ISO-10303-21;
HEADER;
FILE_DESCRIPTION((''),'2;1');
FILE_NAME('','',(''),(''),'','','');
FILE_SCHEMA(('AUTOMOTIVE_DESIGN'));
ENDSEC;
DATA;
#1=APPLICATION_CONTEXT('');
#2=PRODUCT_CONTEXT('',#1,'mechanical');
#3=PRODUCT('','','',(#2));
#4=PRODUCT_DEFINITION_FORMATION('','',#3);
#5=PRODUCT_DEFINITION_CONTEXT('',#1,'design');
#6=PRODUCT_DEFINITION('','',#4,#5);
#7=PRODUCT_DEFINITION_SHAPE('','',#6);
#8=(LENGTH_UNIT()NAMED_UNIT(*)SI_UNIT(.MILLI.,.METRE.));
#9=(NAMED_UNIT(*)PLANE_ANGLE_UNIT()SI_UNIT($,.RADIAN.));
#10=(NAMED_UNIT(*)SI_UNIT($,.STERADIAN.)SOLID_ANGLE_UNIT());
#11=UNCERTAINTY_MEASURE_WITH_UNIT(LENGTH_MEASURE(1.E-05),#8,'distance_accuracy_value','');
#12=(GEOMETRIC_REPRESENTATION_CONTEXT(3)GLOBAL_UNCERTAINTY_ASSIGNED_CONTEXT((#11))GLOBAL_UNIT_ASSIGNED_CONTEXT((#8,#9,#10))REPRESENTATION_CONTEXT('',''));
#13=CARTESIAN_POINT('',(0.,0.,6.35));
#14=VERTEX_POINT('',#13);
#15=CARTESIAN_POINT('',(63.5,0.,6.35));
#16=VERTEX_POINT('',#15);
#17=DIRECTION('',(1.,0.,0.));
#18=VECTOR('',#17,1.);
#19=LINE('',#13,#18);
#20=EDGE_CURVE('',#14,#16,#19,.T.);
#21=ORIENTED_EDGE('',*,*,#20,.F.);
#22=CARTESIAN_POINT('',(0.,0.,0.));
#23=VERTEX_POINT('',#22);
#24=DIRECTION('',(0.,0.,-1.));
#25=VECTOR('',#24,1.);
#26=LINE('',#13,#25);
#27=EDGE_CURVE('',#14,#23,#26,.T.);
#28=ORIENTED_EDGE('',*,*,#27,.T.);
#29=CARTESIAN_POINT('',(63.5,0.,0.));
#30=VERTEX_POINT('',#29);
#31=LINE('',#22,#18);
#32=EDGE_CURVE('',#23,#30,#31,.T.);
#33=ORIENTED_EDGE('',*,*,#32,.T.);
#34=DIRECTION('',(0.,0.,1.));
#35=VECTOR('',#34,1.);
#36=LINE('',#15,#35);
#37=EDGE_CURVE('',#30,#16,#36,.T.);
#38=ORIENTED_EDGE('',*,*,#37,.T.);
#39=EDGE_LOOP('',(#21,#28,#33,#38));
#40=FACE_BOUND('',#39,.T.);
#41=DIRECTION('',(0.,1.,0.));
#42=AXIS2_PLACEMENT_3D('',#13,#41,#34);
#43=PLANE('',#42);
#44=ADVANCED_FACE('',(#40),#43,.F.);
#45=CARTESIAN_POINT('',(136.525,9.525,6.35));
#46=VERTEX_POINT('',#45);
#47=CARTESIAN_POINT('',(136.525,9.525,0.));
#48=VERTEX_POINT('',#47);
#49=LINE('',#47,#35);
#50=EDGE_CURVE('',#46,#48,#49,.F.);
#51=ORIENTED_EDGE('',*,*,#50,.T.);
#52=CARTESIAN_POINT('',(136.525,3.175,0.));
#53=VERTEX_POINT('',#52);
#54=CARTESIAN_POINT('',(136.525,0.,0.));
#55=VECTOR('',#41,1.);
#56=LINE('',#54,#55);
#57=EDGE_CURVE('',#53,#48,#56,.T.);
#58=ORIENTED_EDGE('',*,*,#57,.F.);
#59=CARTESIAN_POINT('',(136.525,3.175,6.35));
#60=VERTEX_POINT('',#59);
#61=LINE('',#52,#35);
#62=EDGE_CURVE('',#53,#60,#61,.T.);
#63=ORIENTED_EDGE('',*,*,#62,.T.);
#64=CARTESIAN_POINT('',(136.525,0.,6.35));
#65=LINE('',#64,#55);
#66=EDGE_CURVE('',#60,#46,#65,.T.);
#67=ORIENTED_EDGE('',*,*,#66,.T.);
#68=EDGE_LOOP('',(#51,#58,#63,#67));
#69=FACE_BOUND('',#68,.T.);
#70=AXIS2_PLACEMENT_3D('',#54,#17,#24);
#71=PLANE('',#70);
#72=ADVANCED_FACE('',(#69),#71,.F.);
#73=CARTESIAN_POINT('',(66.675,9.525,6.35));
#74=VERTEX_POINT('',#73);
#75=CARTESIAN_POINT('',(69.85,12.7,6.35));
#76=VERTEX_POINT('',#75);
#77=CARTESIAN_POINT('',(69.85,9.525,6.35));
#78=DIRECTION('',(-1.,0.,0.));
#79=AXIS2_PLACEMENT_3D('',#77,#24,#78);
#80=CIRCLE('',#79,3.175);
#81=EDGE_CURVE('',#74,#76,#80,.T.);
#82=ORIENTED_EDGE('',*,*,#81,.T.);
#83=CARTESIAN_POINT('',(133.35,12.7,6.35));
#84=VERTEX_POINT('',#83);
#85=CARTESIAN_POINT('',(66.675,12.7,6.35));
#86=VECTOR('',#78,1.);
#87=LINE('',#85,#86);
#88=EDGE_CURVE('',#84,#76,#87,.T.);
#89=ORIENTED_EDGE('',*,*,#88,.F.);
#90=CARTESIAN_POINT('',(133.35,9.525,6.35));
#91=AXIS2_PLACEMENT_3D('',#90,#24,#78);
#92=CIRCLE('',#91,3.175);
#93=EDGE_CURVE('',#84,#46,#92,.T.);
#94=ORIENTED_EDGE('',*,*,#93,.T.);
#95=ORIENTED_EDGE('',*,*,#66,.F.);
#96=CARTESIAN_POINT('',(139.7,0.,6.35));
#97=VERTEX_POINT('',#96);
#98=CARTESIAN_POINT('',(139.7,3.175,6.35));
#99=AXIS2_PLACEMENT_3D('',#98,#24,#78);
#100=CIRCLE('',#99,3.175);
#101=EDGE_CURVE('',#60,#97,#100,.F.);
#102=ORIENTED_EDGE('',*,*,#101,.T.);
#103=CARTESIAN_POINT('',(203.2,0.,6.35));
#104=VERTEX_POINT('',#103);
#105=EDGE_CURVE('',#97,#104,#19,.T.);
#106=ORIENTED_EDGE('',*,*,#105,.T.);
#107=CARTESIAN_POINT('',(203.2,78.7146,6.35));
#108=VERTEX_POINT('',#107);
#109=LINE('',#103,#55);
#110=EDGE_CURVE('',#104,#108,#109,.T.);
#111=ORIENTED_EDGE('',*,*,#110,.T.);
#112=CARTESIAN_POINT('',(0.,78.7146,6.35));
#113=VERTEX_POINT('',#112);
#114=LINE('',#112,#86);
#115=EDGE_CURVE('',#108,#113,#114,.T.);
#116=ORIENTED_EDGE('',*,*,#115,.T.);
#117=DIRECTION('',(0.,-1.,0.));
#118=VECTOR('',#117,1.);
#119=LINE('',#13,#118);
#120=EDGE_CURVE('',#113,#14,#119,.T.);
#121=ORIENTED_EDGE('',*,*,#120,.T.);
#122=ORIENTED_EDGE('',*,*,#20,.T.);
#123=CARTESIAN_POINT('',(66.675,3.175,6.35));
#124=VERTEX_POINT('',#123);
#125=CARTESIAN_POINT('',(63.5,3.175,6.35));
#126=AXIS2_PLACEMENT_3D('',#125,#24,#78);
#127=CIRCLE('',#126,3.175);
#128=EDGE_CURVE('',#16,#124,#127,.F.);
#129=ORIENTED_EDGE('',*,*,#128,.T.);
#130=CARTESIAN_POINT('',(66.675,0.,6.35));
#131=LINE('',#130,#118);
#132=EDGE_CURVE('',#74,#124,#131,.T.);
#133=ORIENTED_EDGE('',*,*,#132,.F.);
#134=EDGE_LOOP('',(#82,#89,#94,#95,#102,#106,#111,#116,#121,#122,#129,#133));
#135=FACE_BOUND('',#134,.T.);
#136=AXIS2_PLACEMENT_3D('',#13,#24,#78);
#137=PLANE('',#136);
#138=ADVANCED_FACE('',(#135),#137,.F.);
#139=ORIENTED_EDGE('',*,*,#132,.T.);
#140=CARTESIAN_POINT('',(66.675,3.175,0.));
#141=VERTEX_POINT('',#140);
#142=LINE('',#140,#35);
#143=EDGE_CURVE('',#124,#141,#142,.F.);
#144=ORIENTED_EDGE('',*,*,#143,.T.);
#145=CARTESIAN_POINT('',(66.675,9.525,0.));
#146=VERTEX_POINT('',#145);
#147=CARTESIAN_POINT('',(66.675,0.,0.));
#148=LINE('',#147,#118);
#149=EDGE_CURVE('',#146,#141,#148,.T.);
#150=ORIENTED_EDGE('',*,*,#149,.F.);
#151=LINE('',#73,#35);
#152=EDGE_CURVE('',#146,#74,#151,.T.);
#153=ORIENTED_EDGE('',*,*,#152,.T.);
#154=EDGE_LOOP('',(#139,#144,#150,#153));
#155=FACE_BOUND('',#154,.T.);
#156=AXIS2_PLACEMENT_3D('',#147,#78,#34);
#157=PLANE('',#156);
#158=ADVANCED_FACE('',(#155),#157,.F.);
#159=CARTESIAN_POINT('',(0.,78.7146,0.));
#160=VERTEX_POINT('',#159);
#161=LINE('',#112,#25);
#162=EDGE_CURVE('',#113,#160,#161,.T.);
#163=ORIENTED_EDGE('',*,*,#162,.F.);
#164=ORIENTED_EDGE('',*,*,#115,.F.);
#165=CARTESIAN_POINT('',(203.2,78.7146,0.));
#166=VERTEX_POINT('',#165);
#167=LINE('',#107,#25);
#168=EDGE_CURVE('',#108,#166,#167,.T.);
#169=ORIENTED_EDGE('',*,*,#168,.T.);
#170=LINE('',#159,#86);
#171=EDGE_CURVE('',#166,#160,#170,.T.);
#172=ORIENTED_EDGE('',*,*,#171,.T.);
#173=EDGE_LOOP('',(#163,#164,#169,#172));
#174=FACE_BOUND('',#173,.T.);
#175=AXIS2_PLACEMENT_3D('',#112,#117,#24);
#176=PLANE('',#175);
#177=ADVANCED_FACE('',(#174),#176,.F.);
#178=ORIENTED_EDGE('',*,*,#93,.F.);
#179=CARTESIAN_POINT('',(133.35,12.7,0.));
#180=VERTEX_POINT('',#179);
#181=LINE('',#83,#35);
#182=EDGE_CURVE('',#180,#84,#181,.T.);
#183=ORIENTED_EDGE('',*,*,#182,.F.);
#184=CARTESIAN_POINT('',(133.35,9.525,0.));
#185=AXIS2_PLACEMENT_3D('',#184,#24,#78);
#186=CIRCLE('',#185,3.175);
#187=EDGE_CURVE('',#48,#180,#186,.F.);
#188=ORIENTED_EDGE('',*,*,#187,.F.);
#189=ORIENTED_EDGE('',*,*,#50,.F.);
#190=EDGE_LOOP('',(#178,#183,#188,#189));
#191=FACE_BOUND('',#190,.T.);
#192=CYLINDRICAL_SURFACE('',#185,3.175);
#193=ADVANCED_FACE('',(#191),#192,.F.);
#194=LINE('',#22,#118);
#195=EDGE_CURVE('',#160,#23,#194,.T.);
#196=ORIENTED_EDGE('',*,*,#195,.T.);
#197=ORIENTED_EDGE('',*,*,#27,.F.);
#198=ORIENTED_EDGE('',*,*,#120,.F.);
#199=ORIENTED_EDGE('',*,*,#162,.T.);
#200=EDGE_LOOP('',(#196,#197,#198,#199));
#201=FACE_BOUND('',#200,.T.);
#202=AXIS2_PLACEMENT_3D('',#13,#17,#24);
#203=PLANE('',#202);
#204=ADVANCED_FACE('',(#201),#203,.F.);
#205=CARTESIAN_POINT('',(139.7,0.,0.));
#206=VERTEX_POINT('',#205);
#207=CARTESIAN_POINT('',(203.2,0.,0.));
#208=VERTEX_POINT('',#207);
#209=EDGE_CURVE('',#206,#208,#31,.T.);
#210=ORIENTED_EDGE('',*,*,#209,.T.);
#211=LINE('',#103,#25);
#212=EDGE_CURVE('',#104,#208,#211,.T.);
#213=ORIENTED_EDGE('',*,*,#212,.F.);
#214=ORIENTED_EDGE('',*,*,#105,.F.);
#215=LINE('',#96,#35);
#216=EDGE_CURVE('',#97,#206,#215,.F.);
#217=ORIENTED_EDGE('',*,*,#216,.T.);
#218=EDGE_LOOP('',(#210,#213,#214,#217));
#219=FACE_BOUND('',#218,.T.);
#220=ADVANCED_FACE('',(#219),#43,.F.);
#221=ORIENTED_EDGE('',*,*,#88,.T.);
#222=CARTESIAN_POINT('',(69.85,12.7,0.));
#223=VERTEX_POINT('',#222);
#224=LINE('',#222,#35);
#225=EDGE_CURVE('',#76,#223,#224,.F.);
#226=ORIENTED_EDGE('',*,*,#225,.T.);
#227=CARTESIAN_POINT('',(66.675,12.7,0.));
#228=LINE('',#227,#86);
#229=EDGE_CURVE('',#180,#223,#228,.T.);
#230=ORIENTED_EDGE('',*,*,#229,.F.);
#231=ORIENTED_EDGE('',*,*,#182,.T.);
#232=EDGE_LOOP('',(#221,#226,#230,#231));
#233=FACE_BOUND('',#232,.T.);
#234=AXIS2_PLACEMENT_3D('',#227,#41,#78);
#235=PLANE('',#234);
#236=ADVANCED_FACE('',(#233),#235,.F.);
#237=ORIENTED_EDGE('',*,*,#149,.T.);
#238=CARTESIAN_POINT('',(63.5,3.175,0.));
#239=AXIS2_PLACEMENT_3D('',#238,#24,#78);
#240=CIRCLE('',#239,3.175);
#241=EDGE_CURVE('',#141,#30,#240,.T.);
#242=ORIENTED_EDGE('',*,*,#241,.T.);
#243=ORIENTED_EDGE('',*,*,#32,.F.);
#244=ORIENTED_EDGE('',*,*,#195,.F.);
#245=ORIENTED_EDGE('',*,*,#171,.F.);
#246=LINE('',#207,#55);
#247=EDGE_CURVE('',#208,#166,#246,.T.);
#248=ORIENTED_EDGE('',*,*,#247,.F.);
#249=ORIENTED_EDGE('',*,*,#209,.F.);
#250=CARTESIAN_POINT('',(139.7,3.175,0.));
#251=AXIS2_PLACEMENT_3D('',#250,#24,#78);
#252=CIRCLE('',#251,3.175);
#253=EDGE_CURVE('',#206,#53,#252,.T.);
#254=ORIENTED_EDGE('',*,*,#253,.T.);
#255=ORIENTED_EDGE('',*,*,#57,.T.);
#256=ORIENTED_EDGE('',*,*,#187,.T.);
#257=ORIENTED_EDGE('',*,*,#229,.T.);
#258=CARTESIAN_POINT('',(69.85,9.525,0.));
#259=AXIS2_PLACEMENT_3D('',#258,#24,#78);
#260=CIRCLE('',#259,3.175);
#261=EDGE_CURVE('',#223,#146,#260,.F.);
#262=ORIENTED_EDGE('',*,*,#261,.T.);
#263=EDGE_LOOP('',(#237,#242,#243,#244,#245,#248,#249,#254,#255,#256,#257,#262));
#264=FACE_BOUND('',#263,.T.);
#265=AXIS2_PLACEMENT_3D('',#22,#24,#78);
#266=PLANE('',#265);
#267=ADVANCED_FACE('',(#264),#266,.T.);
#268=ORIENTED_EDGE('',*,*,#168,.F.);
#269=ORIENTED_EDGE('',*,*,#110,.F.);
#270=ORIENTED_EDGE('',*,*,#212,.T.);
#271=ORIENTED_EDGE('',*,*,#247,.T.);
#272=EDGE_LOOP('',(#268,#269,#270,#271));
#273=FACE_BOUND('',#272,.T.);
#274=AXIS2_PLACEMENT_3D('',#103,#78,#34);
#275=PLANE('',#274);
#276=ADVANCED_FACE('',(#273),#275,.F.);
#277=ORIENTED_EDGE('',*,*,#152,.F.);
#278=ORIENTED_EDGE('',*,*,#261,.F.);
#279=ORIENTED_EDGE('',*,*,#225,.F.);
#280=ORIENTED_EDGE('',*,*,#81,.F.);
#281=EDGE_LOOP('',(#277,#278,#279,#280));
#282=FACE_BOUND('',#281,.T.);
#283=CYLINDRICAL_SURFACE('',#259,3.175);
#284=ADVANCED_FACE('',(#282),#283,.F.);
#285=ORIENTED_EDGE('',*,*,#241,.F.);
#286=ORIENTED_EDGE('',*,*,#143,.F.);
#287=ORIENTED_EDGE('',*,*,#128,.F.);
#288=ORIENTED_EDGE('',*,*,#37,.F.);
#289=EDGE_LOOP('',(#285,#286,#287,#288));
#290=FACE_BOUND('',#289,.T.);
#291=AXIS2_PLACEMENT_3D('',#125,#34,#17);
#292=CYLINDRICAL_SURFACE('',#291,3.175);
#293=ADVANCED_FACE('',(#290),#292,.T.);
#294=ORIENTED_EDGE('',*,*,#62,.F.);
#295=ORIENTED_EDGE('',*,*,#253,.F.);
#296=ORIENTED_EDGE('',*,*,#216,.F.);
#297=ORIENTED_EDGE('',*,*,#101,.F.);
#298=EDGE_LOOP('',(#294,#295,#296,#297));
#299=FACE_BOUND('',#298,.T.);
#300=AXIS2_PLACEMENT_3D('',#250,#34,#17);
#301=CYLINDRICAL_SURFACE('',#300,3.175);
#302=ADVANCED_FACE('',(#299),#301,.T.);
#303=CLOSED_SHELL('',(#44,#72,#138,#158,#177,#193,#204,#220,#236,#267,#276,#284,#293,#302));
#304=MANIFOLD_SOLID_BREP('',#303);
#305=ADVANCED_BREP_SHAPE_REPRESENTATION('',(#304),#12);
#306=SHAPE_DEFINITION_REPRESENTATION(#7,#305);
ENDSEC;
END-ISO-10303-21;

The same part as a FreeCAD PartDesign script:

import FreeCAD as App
import Part
import Sketcher
Q = App.Units.Quantity


def edges_at(feature, points):
    """Names of the edges that pass closest to the given points."""
    edges = feature.Shape.Edges
    near = lambda p: min(range(len(edges)), key=lambda i: edges[i].distToShape(Part.Vertex(*p))[0])
    return sorted({f"Edge{near(p) + 1}" for p in points})


def add_polygon(sketch, points):
    """Adds a closed chain of lines whose ends are joined by coincident constraints."""
    first, n = sketch.GeometryCount, len(points)
    for a, b in zip(points, points[1:] + points[:1]):
        sketch.addGeometry(Part.LineSegment(App.Vector(*a, 0), App.Vector(*b, 0)), False)
    for i in range(n):
        sketch.addConstraint(Sketcher.Constraint("Coincident", first + i, 2, first + (i + 1) % n, 1))

doc = App.newDocument("Part")
body = doc.addObject("PartDesign::Body", "Body")

sketch1 = doc.addObject("Sketcher::SketchObject", "Sketch")
body.addObject(sketch1)
sketch1.AttachmentSupport = (doc.XY_Plane, [""])
sketch1.MapMode = "FlatFace"
add_polygon(sketch1, [(0, 79), (0, 0), (203, 0), (203, 79)])
sketch1.addConstraint(Sketcher.Constraint("Vertical", 0))
sketch1.addConstraint(Sketcher.Constraint("Horizontal", 1))
sketch1.addConstraint(Sketcher.Constraint("Vertical", 2))
sketch1.addConstraint(Sketcher.Constraint("Horizontal", 3))
sketch1.addConstraint(Sketcher.Constraint("Coincident", 0, 2, -1, 1))
sketch1.addConstraint(Sketcher.Constraint("DistanceX", 1, 1, 1, 2, Q("8 in")))
sketch1.addConstraint(Sketcher.Constraint("DistanceY", 0, 2, 0, 1, Q("3.099 in")))
pad1 = doc.addObject("PartDesign::Pad", "Pad")
body.addObject(pad1)
pad1.Profile = sketch1
pad1.Length = Q("0.25 in")

sketch2 = doc.addObject("Sketcher::SketchObject", "Sketch001")
body.addObject(sketch2)
sketch2.AttachmentSupport = (doc.XY_Plane, [""])
sketch2.MapMode = "FlatFace"
sketch2.AttachmentOffset = App.Placement(App.Vector(0, 0, 0.25 * 25.4), App.Rotation())
add_polygon(sketch2, [(67, 13), (67, 0), (137, 0), (137, 13)])
sketch2.addConstraint(Sketcher.Constraint("Vertical", 0))
sketch2.addConstraint(Sketcher.Constraint("Horizontal", 1))
sketch2.addConstraint(Sketcher.Constraint("Vertical", 2))
sketch2.addConstraint(Sketcher.Constraint("Horizontal", 3))
sketch2.addConstraint(Sketcher.Constraint("PointOnObject", 0, 2, -1))
sketch2.addConstraint(Sketcher.Constraint("DistanceY", 0, 2, 0, 1, Q("0.5 in")))
sketch2.addConstraint(Sketcher.Constraint("DistanceX", 1, 1, 1, 2, Q("2.75 in")))
sketch2.addConstraint(Sketcher.Constraint("DistanceX", -1, 1, 0, 2, Q("2.625 in")))
pocket1 = doc.addObject("PartDesign::Pocket", "Pocket")
body.addObject(pocket1)
pocket1.Profile = sketch2
pocket1.Type = "ThroughAll"
doc.recompute()

fillet = doc.addObject("PartDesign::Fillet", "Fillet")
body.addObject(fillet)
fillet.Base = (pocket1, edges_at(pocket1, [
    (66.675, 0, 3.175),
    (66.675, 12.7, 3.175),
    (136.525, 12.7, 3.175),
    (136.525, 0, 3.175),
]))
fillet.Radius = Q("0.125 in")

doc.recompute()
